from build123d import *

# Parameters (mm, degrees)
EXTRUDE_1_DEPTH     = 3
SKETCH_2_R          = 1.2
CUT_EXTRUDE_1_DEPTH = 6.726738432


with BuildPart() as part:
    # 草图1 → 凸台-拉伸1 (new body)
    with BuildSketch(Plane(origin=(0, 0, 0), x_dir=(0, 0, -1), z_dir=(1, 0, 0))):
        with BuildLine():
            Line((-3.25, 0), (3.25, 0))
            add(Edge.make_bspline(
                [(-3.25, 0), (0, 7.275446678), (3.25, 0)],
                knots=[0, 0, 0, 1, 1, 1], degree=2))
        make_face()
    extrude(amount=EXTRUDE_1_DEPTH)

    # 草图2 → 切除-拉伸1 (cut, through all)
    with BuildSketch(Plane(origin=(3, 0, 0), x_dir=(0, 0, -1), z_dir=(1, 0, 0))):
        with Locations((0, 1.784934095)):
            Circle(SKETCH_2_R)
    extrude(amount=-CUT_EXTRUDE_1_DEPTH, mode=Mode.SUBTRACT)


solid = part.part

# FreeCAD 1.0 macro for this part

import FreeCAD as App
import Part
import Sketcher
from FreeCAD import Vector
Q = App.Units.Quantity

doc = App.newDocument("Part")
body = doc.addObject("PartDesign::Body", "Body")

# Sketch on YZ plane
sketch1 = doc.addObject("Sketcher::SketchObject", "Sketch")
body.addObject(sketch1)
sketch1.AttachmentSupport = (doc.YZ_Plane, [""])
sketch1.MapMode = "FlatFace"
sketch1.addGeometry([
    Part.LineSegment(Vector(0, 3.25, 0), Vector(0, -3.25, 0)),
    Part.BSplineCurve([Vector(0, 3.25, 0), Vector(7.275447, 0, 0), Vector(0, -3.25, 0)], [3, 3], [0, 1], False, 2, [1, 1, 1], False),
], False)
sketch1.addConstraint([
    Sketcher.Constraint("Block", 1),
    Sketcher.Constraint("Coincident", 0, 1, 1, 1),
    Sketcher.Constraint("Coincident", 1, 2, 0, 2),
])
pad1 = doc.addObject("PartDesign::Pad", "Pad")
body.addObject(pad1)
pad1.Profile = sketch1
pad1.Length = 3

# Sketch on YZ plane
sketch2 = doc.addObject("Sketcher::SketchObject", "Sketch001")
body.addObject(sketch2)
sketch2.AttachmentSupport = (doc.YZ_Plane, [""])
sketch2.MapMode = "FlatFace"
sketch2.AttachmentOffset = App.Placement(Vector(0, 0, 3), App.Rotation())
sketch2.addGeometry(Part.Circle(Vector(1.784934, 0, 0), Vector(0, 0, 1), 1.2), False)
sketch2.addConstraint([
    Sketcher.Constraint("PointOnObject", 0, 3, -1),
    Sketcher.Constraint("Diameter", 0, Q("2.4 mm")),
    Sketcher.Constraint("DistanceX", -1, 1, 0, 3, Q("1.784934 mm")),
])
pocket1 = doc.addObject("PartDesign::Pocket", "Pocket")
body.addObject(pocket1)
pocket1.Profile = sketch2
pocket1.Type = "ThroughAll"

doc.recompute()
